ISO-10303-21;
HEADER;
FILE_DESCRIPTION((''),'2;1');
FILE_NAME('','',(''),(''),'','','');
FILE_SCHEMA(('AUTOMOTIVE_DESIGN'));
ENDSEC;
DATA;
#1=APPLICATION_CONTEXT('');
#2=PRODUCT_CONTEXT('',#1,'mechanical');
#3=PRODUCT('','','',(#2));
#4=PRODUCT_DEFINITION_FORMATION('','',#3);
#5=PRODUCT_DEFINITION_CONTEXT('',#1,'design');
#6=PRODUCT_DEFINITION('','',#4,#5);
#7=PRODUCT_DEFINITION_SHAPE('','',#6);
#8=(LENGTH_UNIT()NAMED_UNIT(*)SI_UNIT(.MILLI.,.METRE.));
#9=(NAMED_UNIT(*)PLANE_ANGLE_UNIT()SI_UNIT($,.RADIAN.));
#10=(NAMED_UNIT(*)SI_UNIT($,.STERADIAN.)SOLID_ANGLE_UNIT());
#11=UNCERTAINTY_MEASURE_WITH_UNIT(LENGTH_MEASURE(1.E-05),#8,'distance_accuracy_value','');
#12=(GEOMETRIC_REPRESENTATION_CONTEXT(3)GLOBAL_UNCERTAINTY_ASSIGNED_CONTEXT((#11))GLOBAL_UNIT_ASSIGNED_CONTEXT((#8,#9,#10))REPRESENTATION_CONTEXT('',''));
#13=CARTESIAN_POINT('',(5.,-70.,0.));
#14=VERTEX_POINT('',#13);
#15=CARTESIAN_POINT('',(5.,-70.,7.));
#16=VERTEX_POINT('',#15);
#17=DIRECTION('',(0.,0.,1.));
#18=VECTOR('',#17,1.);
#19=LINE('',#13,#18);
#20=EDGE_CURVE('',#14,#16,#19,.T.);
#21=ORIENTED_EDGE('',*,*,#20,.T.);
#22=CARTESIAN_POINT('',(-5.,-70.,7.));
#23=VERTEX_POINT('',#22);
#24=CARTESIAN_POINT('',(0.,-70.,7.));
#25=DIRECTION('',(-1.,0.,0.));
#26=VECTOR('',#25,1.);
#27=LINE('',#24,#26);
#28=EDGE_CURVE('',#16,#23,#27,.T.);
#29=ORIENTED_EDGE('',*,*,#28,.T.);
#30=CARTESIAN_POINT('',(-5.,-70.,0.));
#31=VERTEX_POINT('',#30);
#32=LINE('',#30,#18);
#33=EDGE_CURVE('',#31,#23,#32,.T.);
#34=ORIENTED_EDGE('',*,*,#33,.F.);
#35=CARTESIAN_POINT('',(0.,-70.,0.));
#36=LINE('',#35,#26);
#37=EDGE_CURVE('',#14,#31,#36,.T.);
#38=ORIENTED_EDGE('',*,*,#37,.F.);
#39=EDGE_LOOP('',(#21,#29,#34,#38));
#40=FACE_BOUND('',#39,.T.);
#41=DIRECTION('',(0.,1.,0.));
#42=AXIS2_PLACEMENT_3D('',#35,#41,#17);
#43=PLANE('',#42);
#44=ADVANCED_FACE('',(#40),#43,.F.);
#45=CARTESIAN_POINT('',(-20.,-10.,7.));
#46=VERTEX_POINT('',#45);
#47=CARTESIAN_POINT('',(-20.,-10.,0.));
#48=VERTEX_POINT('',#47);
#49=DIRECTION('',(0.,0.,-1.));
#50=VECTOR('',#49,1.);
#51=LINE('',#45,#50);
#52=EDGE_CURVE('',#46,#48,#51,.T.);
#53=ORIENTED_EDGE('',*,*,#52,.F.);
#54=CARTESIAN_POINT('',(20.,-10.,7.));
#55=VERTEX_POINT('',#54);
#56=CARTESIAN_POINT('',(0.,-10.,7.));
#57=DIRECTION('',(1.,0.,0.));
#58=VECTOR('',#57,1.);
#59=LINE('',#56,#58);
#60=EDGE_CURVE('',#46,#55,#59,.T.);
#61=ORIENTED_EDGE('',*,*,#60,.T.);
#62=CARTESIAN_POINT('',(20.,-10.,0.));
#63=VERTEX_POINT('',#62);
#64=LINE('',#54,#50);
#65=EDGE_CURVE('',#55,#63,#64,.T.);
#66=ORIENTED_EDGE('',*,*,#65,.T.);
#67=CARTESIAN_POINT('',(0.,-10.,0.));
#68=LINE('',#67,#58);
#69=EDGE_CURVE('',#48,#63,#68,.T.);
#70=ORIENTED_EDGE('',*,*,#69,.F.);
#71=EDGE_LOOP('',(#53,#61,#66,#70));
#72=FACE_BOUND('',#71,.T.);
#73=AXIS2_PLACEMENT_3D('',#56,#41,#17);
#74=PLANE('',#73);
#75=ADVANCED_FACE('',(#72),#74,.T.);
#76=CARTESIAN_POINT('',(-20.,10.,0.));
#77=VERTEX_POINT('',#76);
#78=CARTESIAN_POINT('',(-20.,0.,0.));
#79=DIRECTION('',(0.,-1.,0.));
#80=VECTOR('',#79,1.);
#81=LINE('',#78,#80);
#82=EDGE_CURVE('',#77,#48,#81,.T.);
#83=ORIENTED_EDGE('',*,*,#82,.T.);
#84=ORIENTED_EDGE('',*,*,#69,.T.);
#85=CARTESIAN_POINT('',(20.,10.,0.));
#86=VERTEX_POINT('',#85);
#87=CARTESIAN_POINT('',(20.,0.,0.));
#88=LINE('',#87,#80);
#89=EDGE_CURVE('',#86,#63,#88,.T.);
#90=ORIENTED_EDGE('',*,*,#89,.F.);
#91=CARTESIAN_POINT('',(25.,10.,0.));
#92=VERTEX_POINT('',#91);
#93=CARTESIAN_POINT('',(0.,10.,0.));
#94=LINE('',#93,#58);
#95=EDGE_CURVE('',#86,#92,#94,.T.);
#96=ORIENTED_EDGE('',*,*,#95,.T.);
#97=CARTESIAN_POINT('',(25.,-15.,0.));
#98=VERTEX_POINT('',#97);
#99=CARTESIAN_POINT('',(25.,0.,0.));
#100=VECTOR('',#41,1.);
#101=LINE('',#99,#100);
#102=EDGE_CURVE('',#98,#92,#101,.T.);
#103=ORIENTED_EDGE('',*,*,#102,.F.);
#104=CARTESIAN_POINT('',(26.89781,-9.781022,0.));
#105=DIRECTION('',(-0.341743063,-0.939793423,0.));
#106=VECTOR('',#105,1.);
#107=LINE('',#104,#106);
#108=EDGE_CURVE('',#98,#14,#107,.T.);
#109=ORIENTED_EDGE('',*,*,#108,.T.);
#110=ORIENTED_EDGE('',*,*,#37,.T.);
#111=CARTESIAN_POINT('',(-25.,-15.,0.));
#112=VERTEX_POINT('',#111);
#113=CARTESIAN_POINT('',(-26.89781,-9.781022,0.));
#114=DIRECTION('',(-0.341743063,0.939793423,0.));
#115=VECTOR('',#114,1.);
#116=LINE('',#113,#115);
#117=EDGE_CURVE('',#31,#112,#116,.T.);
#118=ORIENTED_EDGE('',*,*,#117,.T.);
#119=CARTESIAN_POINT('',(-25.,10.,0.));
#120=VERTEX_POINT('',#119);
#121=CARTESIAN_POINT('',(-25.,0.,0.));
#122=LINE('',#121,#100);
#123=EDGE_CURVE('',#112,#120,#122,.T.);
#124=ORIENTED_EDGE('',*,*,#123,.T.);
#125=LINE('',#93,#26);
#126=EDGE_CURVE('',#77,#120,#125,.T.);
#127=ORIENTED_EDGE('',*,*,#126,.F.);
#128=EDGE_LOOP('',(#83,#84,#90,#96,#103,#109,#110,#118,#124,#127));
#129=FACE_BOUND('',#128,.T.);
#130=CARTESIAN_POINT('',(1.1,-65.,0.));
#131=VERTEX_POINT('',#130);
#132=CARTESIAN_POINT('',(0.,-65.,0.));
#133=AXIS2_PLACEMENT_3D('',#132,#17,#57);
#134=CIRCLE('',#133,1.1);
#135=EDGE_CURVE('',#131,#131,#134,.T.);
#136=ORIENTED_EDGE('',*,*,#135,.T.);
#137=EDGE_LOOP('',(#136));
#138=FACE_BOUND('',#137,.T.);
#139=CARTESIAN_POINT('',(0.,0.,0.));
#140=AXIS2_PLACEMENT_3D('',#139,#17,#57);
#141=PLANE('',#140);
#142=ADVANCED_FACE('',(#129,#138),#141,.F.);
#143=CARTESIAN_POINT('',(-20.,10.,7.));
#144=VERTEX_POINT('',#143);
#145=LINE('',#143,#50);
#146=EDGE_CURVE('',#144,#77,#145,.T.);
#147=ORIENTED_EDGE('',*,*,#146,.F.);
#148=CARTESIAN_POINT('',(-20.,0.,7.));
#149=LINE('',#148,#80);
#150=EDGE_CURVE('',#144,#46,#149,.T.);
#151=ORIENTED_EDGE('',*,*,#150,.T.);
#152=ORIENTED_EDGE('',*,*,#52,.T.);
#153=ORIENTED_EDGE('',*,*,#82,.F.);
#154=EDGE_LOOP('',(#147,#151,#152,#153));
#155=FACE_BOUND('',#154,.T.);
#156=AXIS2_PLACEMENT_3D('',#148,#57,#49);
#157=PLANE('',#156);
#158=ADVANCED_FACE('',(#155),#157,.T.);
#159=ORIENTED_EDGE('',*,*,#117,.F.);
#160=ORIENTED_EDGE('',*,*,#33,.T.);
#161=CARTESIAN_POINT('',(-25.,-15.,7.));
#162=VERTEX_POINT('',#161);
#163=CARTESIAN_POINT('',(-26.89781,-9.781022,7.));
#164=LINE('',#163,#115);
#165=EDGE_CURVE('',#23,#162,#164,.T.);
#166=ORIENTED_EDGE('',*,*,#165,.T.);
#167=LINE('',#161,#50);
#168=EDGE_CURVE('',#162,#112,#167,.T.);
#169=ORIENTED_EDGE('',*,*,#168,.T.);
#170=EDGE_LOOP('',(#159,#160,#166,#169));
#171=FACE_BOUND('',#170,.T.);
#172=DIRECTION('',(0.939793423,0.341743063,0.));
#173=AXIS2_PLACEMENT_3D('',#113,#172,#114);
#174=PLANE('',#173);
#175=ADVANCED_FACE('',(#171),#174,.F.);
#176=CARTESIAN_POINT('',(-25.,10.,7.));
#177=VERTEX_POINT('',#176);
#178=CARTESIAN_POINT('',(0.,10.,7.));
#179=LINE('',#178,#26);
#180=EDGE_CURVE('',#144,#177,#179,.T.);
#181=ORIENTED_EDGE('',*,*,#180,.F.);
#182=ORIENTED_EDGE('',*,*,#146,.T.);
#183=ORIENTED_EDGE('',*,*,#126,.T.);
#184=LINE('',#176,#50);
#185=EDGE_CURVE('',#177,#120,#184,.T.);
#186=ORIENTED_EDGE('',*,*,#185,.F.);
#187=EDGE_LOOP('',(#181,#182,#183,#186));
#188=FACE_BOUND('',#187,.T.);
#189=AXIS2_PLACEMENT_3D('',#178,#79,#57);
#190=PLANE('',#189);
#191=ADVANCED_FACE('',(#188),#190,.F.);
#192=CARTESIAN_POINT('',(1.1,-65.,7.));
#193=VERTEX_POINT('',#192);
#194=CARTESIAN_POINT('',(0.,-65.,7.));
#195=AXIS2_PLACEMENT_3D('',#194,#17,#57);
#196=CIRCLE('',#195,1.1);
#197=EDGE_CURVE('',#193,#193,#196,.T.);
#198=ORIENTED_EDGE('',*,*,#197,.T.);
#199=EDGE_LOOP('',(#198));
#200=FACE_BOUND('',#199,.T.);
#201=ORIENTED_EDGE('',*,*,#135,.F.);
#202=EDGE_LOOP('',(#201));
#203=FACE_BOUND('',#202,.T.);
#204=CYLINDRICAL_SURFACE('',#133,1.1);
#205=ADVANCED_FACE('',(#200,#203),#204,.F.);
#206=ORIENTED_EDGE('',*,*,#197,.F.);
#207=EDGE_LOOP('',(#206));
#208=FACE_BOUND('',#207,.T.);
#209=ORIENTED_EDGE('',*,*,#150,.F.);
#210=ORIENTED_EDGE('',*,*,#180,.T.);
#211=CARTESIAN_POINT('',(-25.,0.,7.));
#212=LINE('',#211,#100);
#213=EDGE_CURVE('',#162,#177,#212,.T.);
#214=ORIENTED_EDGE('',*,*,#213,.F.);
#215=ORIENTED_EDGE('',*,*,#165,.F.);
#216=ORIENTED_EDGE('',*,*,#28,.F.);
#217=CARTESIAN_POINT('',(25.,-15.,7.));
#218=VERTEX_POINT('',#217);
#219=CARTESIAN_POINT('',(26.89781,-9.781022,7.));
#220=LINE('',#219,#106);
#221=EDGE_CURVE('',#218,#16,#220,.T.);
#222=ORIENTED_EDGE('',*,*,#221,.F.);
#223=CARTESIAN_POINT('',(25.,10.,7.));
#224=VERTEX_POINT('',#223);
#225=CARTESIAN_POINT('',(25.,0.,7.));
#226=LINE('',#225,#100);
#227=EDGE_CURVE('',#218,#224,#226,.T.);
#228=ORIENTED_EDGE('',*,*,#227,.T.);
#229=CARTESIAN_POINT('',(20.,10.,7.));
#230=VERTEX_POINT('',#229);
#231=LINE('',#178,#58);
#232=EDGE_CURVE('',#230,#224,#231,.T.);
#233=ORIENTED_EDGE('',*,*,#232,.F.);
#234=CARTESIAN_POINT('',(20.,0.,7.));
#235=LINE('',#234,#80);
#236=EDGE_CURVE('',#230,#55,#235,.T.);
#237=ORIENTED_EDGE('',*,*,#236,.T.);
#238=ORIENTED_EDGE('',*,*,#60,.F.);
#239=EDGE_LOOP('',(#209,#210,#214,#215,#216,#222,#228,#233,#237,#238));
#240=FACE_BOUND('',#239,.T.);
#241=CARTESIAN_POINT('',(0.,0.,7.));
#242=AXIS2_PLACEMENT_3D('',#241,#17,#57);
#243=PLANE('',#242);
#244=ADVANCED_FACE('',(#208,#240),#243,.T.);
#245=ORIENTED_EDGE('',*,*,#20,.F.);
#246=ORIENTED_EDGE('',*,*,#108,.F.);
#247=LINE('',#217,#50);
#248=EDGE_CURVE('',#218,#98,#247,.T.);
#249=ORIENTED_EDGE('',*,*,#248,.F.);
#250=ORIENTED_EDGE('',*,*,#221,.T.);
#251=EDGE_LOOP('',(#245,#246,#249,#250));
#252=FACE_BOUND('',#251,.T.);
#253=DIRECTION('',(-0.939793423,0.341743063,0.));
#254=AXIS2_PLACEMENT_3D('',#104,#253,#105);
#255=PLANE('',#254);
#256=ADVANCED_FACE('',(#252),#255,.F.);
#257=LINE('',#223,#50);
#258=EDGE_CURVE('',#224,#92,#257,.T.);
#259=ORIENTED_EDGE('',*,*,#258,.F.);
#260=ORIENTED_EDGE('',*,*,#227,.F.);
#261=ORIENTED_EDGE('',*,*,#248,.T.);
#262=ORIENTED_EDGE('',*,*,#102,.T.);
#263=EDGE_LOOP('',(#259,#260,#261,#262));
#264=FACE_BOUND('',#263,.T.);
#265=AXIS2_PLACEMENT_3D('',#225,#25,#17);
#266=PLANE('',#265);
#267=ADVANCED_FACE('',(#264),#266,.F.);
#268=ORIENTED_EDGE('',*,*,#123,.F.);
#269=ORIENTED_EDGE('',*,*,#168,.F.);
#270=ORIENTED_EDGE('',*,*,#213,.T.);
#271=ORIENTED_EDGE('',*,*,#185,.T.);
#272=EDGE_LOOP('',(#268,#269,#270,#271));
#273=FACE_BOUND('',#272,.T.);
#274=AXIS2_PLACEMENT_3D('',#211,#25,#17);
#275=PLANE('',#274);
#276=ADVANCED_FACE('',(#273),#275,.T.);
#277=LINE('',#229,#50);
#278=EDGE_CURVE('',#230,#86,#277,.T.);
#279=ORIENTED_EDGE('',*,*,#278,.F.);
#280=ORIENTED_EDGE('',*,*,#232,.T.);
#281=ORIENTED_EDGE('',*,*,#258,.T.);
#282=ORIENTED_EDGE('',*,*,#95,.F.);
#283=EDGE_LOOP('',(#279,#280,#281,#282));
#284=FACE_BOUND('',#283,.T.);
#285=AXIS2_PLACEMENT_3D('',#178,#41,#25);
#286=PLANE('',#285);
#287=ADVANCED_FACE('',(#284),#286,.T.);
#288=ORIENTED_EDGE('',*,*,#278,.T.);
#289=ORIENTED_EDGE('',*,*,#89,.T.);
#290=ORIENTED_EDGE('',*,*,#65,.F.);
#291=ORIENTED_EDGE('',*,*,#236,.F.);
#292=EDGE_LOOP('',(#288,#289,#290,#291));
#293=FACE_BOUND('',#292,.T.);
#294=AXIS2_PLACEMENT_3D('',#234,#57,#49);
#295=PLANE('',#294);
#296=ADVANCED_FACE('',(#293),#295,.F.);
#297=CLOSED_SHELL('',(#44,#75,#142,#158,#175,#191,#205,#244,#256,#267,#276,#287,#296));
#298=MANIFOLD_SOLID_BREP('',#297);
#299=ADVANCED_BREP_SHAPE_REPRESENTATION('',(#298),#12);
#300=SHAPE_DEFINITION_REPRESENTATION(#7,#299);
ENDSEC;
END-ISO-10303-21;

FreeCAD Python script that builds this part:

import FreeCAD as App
import Part
import Sketcher

V = App.Vector

doc = App.newDocument("Part")
body = doc.addObject("PartDesign::Body", "Body")

sketch1 = body.newObject("Sketcher::SketchObject", "Sketch")
sketch1.AttachmentSupport = (doc.getObject("XY_Plane"), [""])
sketch1.MapMode = "FlatFace"
sketch1.addGeometry([
    Part.LineSegment(V(-20, -10, 0), V(-20, 10, 0)),
    Part.LineSegment(V(-20, 10, 0), V(-25, 10, 0)),
    Part.LineSegment(V(-25, 10, 0), V(-25, -15, 0)),
    Part.LineSegment(V(-25, -15, 0), V(25, -15, 0)),
    Part.LineSegment(V(25, -15, 0), V(25, 10, 0)),
    Part.LineSegment(V(25, 10, 0), V(20, 10, 0)),
    Part.LineSegment(V(20, 10, 0), V(20, -10, 0)),
    Part.LineSegment(V(20, -10, 0), V(-20, -10, 0)),
], False)
sketch1.addConstraint([
    Sketcher.Constraint("Coincident", 0, 2, 1, 1),
    Sketcher.Constraint("Coincident", 1, 2, 2, 1),
    Sketcher.Constraint("Coincident", 2, 2, 3, 1),
    Sketcher.Constraint("Coincident", 3, 2, 4, 1),
    Sketcher.Constraint("Coincident", 4, 2, 5, 1),
    Sketcher.Constraint("Coincident", 5, 2, 6, 1),
    Sketcher.Constraint("Coincident", 6, 2, 7, 1),
    Sketcher.Constraint("Coincident", 7, 2, 0, 1),
    Sketcher.Constraint("Vertical", 0),
    Sketcher.Constraint("Horizontal", 1),
    Sketcher.Constraint("Vertical", 2),
    Sketcher.Constraint("Horizontal", 3),
    Sketcher.Constraint("Vertical", 4),
    Sketcher.Constraint("Horizontal", 5),
    Sketcher.Constraint("Vertical", 6),
    Sketcher.Constraint("Horizontal", 7),
    Sketcher.Constraint("Symmetric", 0, 2, 6, 2, -1, 1),
    Sketcher.Constraint("Symmetric", 1, 2, 4, 2, -2),
    Sketcher.Constraint("DistanceX", 1, 2, 1, 1, 5.0),
    Sketcher.Constraint("DistanceX", 3, 1, 3, 2, 50.0),
    Sketcher.Constraint("DistanceY", 0, 1, 0, 2, 20.0),
    Sketcher.Constraint("DistanceY", 2, 2, 2, 1, 25.0),
])
pad1 = body.newObject("PartDesign::Pad", "Pad")
pad1.Profile = sketch1
pad1.Length = 7

sketch2 = body.newObject("Sketcher::SketchObject", "Sketch001")
sketch2.AttachmentSupport = (doc.getObject("XY_Plane"), [""])
sketch2.MapMode = "FlatFace"
sketch2.AttachmentOffset = App.Placement(V(0, 0, 7), App.Rotation())
sketch2.addGeometry([
    Part.LineSegment(V(-25, -15, 0), V(-5, -70, 0)),
    Part.LineSegment(V(-5, -70, 0), V(5, -70, 0)),
    Part.LineSegment(V(5, -70, 0), V(25, -15, 0)),
    Part.LineSegment(V(25, -15, 0), V(-25, -15, 0)),
    Part.Circle(V(0, -65, 0), V(0, 0, 1), 1.1),
], False)
sketch2.addConstraint([
    Sketcher.Constraint("Coincident", 0, 2, 1, 1),
    Sketcher.Constraint("Coincident", 1, 2, 2, 1),
    Sketcher.Constraint("Coincident", 2, 2, 3, 1),
    Sketcher.Constraint("Coincident", 3, 2, 0, 1),
    Sketcher.Constraint("Horizontal", 1),
    Sketcher.Constraint("Horizontal", 3),
    Sketcher.Constraint("PointOnObject", 4, 3, -2),
    Sketcher.Constraint("Equal", 0, 2),
    Sketcher.Constraint("Diameter", 4, 2.2),
    Sketcher.Constraint("DistanceX", 1, 1, 1, 2, 10.0),
    Sketcher.Constraint("DistanceX", 3, 2, 3, 1, 50.0),
    Sketcher.Constraint("DistanceY", 4, 3, -1, 1, 65.0),
    Sketcher.Constraint("DistanceX", 0, 2, -1, 1, 5.0),
    Sketcher.Constraint("DistanceY", 0, 2, -1, 1, 70.0),
    Sketcher.Constraint("DistanceY", 2, 2, -1, 1, 15.0),
])
pad2 = body.newObject("PartDesign::Pad", "Pad001")
pad2.Profile = sketch2
pad2.Length = 7
pad2.Reversed = True

doc.recompute()
